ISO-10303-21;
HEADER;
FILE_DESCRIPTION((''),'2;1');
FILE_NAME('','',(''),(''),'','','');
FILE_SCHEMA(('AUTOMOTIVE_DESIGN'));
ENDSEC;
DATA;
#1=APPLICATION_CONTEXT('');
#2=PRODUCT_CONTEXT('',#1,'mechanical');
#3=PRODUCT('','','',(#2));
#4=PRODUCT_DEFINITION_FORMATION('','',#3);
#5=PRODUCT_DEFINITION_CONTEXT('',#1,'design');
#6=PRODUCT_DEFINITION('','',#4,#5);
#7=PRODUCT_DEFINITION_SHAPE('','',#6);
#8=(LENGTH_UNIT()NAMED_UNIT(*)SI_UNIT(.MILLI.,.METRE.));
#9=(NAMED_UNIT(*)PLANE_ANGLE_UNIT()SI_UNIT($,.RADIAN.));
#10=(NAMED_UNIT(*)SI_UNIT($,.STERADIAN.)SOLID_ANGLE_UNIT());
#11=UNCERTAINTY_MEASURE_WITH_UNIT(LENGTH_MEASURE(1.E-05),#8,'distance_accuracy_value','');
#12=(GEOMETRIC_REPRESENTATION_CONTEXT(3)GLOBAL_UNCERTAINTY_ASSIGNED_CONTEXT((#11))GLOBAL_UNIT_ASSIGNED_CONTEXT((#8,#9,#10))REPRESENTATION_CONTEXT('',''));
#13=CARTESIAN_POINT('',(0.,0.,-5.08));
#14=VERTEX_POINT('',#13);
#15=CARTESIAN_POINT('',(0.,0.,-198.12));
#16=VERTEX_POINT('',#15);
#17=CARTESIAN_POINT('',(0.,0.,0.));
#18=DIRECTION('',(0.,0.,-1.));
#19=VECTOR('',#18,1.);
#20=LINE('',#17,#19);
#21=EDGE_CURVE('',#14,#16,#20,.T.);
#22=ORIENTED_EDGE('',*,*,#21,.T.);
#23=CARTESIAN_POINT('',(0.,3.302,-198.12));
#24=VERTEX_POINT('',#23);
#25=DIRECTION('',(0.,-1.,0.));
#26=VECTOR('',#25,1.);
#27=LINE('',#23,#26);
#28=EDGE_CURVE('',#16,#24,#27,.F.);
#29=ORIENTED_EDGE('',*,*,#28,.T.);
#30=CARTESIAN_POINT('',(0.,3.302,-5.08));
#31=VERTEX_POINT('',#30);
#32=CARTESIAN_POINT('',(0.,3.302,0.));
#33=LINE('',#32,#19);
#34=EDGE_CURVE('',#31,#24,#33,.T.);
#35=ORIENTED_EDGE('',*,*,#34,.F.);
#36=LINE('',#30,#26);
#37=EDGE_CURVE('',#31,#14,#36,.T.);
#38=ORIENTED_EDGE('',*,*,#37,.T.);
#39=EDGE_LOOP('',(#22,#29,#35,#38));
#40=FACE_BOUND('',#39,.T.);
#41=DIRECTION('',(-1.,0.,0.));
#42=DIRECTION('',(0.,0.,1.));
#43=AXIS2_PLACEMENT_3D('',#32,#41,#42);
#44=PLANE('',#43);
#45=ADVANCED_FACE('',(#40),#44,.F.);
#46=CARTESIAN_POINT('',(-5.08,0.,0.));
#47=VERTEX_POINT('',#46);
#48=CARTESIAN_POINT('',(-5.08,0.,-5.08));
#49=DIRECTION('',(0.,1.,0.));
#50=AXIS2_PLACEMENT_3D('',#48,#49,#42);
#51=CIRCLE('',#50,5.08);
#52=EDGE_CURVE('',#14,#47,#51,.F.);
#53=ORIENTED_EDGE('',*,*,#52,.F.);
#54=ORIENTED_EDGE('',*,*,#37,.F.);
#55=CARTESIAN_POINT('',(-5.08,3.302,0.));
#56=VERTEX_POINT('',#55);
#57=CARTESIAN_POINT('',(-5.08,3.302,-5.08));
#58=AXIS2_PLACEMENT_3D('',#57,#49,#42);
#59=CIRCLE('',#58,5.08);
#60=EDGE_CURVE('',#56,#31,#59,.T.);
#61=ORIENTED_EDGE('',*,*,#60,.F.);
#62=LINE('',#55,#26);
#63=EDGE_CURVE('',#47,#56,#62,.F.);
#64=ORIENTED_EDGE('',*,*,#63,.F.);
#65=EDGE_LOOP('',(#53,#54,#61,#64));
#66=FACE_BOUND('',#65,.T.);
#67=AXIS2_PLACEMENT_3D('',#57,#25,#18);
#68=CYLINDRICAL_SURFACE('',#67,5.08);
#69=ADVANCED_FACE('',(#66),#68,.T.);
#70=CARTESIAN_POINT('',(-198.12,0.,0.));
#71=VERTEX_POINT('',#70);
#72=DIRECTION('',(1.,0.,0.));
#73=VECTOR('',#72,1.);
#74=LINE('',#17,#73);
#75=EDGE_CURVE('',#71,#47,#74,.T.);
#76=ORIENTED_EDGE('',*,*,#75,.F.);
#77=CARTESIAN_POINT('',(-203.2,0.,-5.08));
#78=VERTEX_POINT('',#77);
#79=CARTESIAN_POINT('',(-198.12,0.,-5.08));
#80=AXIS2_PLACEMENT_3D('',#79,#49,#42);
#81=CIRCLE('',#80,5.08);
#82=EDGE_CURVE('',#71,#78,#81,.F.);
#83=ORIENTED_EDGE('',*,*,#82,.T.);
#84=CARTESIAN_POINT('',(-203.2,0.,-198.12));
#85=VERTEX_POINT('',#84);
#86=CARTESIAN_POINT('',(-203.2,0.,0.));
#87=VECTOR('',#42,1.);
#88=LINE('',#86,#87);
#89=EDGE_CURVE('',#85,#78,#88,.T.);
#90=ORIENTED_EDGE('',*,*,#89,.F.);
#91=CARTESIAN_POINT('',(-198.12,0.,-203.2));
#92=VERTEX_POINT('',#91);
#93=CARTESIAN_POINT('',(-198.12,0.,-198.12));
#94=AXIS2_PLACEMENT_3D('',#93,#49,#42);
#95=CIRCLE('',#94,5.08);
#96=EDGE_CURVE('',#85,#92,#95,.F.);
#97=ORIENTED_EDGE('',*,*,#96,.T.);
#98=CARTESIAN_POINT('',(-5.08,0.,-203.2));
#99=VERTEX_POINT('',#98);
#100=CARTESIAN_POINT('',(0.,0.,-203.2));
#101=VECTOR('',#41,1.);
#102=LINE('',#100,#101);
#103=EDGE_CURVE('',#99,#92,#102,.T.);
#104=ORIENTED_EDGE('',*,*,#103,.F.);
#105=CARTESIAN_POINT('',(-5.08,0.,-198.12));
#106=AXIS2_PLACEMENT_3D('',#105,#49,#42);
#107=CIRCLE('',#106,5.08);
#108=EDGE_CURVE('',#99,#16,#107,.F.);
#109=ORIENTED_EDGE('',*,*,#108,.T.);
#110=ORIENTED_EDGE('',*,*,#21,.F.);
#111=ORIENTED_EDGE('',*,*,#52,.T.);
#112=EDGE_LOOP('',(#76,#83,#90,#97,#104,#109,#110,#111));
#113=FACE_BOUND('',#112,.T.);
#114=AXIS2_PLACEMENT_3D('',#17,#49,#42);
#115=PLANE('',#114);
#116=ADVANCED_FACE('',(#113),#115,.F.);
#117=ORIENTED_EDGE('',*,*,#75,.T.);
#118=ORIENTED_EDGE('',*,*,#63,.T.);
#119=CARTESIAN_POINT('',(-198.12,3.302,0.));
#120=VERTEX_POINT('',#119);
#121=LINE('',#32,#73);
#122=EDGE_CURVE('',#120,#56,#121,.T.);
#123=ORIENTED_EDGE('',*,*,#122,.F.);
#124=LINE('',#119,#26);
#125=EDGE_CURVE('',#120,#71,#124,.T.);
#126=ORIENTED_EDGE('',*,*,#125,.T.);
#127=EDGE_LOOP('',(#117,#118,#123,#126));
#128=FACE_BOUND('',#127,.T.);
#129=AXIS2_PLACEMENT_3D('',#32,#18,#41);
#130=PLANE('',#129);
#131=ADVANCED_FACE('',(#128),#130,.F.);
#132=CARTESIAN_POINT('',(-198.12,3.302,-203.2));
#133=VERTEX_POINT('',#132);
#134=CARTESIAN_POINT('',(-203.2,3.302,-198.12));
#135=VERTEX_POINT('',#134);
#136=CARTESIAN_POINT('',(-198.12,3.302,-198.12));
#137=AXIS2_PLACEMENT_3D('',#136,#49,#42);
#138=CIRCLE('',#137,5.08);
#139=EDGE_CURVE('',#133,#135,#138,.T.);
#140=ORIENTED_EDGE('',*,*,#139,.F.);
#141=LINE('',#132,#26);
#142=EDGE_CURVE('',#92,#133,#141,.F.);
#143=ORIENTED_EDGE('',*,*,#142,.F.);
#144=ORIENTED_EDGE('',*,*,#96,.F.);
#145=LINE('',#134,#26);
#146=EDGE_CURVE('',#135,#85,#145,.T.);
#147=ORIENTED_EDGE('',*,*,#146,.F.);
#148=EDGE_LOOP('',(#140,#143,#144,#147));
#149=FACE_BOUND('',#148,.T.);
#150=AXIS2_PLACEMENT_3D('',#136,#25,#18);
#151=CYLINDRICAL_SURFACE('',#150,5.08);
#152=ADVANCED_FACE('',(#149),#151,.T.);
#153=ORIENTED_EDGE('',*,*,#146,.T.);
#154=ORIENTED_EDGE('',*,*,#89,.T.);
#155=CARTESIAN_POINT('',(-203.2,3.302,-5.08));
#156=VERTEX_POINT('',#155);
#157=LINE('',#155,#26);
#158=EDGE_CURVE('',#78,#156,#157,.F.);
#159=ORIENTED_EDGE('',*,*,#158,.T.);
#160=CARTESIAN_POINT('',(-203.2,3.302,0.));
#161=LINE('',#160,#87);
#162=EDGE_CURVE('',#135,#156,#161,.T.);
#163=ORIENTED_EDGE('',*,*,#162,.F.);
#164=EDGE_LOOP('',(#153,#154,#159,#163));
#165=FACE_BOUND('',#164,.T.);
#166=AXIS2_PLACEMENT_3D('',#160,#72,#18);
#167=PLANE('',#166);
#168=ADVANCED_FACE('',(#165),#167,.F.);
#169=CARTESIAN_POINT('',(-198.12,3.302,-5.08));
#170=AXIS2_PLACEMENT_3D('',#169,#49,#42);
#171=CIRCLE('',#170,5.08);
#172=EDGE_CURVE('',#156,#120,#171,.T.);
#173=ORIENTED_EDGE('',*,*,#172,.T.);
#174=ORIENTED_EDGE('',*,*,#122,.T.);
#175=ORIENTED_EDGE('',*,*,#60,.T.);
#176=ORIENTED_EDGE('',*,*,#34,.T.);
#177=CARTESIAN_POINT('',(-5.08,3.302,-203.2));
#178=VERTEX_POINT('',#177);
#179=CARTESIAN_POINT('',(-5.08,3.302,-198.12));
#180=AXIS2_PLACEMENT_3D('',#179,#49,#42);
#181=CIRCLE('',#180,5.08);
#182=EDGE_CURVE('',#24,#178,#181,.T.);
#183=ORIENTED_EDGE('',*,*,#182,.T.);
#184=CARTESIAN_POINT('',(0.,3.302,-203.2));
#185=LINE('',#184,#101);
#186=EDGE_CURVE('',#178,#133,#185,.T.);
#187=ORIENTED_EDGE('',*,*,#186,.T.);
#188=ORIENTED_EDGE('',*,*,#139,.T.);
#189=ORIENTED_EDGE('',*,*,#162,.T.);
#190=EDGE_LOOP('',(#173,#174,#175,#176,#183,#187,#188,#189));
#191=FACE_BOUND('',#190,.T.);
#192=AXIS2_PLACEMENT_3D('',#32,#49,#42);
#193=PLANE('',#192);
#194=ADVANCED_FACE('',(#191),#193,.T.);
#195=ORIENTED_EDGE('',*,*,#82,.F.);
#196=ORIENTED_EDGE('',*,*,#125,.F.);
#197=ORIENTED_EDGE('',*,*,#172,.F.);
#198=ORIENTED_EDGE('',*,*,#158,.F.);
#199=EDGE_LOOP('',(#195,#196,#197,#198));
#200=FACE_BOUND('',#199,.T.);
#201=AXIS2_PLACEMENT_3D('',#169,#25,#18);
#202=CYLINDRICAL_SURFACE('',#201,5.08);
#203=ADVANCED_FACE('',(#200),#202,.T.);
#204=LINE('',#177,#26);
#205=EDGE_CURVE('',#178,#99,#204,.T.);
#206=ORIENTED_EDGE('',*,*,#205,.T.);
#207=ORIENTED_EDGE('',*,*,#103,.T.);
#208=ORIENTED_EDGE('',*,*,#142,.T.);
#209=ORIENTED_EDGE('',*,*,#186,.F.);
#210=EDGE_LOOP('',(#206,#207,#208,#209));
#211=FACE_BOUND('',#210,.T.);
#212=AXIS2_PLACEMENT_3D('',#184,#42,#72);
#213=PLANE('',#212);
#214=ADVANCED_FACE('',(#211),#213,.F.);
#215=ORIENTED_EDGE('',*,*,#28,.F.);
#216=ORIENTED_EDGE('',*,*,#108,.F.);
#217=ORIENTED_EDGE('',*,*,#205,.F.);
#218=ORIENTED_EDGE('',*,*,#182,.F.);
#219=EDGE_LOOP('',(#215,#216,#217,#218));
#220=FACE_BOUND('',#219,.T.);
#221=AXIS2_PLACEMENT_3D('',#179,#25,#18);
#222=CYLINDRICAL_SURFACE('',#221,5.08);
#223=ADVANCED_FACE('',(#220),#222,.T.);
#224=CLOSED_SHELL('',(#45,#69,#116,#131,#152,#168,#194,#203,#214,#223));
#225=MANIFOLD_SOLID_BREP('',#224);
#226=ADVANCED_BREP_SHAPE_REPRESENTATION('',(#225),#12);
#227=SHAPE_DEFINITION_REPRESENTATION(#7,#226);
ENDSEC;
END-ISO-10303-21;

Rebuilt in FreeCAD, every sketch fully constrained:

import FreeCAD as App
import Part
import Sketcher
Q = App.Units.Quantity


def edges_at(feature, points):
    """Names of the edges that pass closest to the given points."""
    edges = feature.Shape.Edges
    near = lambda p: min(range(len(edges)), key=lambda i: edges[i].distToShape(Part.Vertex(*p))[0])
    return sorted({f"Edge{near(p) + 1}" for p in points})


def add_polygon(sketch, points):
    """Adds a closed chain of lines whose ends are joined by coincident constraints."""
    first, n = sketch.GeometryCount, len(points)
    for a, b in zip(points, points[1:] + points[:1]):
        sketch.addGeometry(Part.LineSegment(App.Vector(*a, 0), App.Vector(*b, 0)), False)
    for i in range(n):
        sketch.addConstraint(Sketcher.Constraint("Coincident", first + i, 2, first + (i + 1) % n, 1))

doc = App.newDocument("Part")
body = doc.addObject("PartDesign::Body", "Body")

# Sketch on XZ plane
sketch1 = body.newObject("Sketcher::SketchObject", "Sketch")
sketch1.AttachmentSupport = (doc.getObject("XZ_Plane"), [""])
sketch1.MapMode = "FlatFace"
add_polygon(sketch1, [(-203.2, -203.2), (-203.2, 0), (0, 0), (0, -203.2)])  # lines 0-3
sketch1.addConstraint([
    Sketcher.Constraint("Vertical", 0),
    Sketcher.Constraint("Horizontal", 1),
    Sketcher.Constraint("Vertical", 2),
    Sketcher.Constraint("Horizontal", 3),
    Sketcher.Constraint("Coincident", 1, 2, -1, 1),
    Sketcher.Constraint("Equal", 3, 0),
    Sketcher.Constraint("DistanceX", 1, 1, 1, 2, Q("8 in")),
])
pad1 = body.newObject("PartDesign::Pad", "Pad")
pad1.Profile = sketch1
pad1.Length = Q("0.13 in")
pad1.Reversed = True
doc.recompute()

fillet = body.newObject("PartDesign::Fillet", "Fillet")
fillet.Base = (pad1, edges_at(pad1, [(-203.2, 1.651, 0)]))
fillet.Radius = Q("0.2 in")
doc.recompute()

fillet2 = body.newObject("PartDesign::Fillet", "Fillet001")
fillet2.Base = (fillet, edges_at(fillet, [(0, 1.651, 0)]))
fillet2.Radius = Q("0.2 in")
doc.recompute()

fillet3 = body.newObject("PartDesign::Fillet", "Fillet002")
fillet3.Base = (fillet2, edges_at(fillet2, [(0, 1.651, -203.2)]))
fillet3.Radius = Q("0.2 in")
doc.recompute()

fillet4 = body.newObject("PartDesign::Fillet", "Fillet003")
fillet4.Base = (fillet3, edges_at(fillet3, [(-203.2, 1.651, -203.2)]))
fillet4.Radius = Q("0.2 in")

doc.recompute()
